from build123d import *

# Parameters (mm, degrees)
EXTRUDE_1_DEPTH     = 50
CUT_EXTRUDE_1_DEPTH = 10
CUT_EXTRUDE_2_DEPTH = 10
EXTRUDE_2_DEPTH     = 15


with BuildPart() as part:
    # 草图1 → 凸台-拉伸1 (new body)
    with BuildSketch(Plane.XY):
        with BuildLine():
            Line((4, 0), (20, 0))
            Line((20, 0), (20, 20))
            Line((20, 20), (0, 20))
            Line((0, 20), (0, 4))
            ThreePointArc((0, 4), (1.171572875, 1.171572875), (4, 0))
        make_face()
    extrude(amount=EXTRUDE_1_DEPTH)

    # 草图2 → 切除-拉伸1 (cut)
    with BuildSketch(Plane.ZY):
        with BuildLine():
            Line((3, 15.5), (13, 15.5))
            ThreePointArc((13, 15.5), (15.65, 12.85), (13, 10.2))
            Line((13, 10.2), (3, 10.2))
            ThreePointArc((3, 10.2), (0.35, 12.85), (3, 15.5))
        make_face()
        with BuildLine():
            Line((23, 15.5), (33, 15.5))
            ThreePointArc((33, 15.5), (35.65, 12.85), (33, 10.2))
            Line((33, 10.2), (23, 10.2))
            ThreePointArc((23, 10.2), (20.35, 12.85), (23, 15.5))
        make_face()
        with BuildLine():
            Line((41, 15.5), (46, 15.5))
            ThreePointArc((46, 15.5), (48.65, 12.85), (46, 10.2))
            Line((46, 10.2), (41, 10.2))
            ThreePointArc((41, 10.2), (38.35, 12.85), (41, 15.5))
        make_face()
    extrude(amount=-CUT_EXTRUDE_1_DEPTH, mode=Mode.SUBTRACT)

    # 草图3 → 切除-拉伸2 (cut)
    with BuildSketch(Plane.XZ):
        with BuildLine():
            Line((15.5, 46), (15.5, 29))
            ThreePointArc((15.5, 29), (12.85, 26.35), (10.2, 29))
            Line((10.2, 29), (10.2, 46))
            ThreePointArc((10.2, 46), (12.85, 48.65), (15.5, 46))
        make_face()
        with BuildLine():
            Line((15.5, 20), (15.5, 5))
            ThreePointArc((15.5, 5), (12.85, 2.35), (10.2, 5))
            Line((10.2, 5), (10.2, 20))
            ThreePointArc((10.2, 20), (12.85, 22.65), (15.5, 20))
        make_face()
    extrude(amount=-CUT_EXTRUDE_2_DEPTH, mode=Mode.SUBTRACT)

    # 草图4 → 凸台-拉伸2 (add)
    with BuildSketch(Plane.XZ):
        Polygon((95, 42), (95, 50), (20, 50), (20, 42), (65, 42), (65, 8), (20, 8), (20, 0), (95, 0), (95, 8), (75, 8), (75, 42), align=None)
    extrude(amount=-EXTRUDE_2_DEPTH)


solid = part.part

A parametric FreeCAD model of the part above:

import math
import FreeCAD as App
import Part
import Sketcher
Q = App.Units.Quantity


def add_polygon(sketch, points):
    """Adds a closed chain of lines whose ends are joined by coincident constraints."""
    first, n = sketch.GeometryCount, len(points)
    for a, b in zip(points, points[1:] + points[:1]):
        sketch.addGeometry(Part.LineSegment(App.Vector(*a, 0), App.Vector(*b, 0)), False)
    for i in range(n):
        sketch.addConstraint(Sketcher.Constraint("Coincident", first + i, 2, first + (i + 1) % n, 1))

doc = App.newDocument("Part")
body = doc.addObject("PartDesign::Body", "Body")

# Sketch on XY plane
sketch1 = body.newObject("Sketcher::SketchObject", "Sketch")
sketch1.AttachmentSupport = (doc.getObject("XY_Plane"), [""])
sketch1.MapMode = "FlatFace"
sketch1.addGeometry([
    Part.LineSegment(App.Vector(4, 0, 0), App.Vector(20, 0, 0)),  # 0
    Part.LineSegment(App.Vector(20, 0, 0), App.Vector(20, 20, 0)),  # 1
    Part.LineSegment(App.Vector(20, 20, 0), App.Vector(0, 20, 0)),  # 2
    Part.LineSegment(App.Vector(0, 20, 0), App.Vector(0, 4, 0)),  # 3
    Part.ArcOfCircle(Part.Circle(App.Vector(4, 4, 0), App.Vector(0, 0, 1), 4), math.radians(180), math.radians(270)),  # 4
], False)
sketch1.addConstraint([
    Sketcher.Constraint("Coincident", 0, 2, 1, 1),
    Sketcher.Constraint("Coincident", 1, 2, 2, 1),
    Sketcher.Constraint("Coincident", 2, 2, 3, 1),
    Sketcher.Constraint("Tangent", 3, 2, 4, 1),
    Sketcher.Constraint("Tangent", 4, 2, 0, 1),
    Sketcher.Constraint("Horizontal", 0),
    Sketcher.Constraint("Vertical", 1),
    Sketcher.Constraint("Horizontal", 2),
    Sketcher.Constraint("Vertical", 3),
    Sketcher.Constraint("PointOnObject", 0, 2, -1),
    Sketcher.Constraint("PointOnObject", 2, 2, -2),
    Sketcher.Constraint("Equal", 2, 1),
    Sketcher.Constraint("Radius", 4, Q("4 mm")),
    Sketcher.Constraint("DistanceX", 0, 1, 0, 2, Q("16 mm")),
])
pad1 = body.newObject("PartDesign::Pad", "Pad")
pad1.Profile = sketch1
pad1.Length = 50

# Sketch on YZ plane
sketch2 = body.newObject("Sketcher::SketchObject", "Sketch001")
sketch2.AttachmentSupport = (doc.getObject("YZ_Plane"), [""])
sketch2.MapMode = "FlatFace"
sketch2.addGeometry([
    Part.LineSegment(App.Vector(15.5, 13, 0), App.Vector(15.5, 3, 0)),  # 0
    Part.ArcOfCircle(Part.Circle(App.Vector(12.8, 3, 0), App.Vector(0, 0, 1), 2.6), math.radians(180), math.radians(360)),  # 1
    Part.LineSegment(App.Vector(10.2, 3, 0), App.Vector(10.2, 13, 0)),  # 2
    Part.ArcOfCircle(Part.Circle(App.Vector(12.8, 13, 0), App.Vector(0, 0, 1), 2.6), math.radians(0), math.radians(180)),  # 3
    Part.LineSegment(App.Vector(15.5, 33, 0), App.Vector(15.5, 23, 0)),  # 4
    Part.ArcOfCircle(Part.Circle(App.Vector(12.8, 23, 0), App.Vector(0, 0, 1), 2.6), math.radians(180), math.radians(360)),  # 5
    Part.LineSegment(App.Vector(10.2, 23, 0), App.Vector(10.2, 33, 0)),  # 6
    Part.ArcOfCircle(Part.Circle(App.Vector(12.8, 33, 0), App.Vector(0, 0, 1), 2.6), math.radians(0), math.radians(180)),  # 7
    Part.LineSegment(App.Vector(15.5, 46, 0), App.Vector(15.5, 41, 0)),  # 8
    Part.ArcOfCircle(Part.Circle(App.Vector(12.8, 41, 0), App.Vector(0, 0, 1), 2.6), math.radians(180), math.radians(360)),  # 9
    Part.LineSegment(App.Vector(10.2, 41, 0), App.Vector(10.2, 46, 0)),  # 10
    Part.ArcOfCircle(Part.Circle(App.Vector(12.8, 46, 0), App.Vector(0, 0, 1), 2.6), math.radians(0), math.radians(180)),  # 11
], False)
sketch2.addConstraint([
    Sketcher.Constraint("Tangent", 0, 2, 1, 2),
    Sketcher.Constraint("Tangent", 1, 1, 2, 1),
    Sketcher.Constraint("Tangent", 2, 2, 3, 2),
    Sketcher.Constraint("Tangent", 3, 1, 0, 1),
    Sketcher.Constraint("Tangent", 4, 2, 5, 2),
    Sketcher.Constraint("Tangent", 5, 1, 6, 1),
    Sketcher.Constraint("Tangent", 6, 2, 7, 2),
    Sketcher.Constraint("Tangent", 7, 1, 4, 1),
    Sketcher.Constraint("Tangent", 8, 2, 9, 2),
    Sketcher.Constraint("Tangent", 9, 1, 10, 1),
    Sketcher.Constraint("Tangent", 10, 2, 11, 2),
    Sketcher.Constraint("Tangent", 11, 1, 8, 1),
    Sketcher.Constraint("Vertical", 0),
    Sketcher.Constraint("Vertical", 2),
    Sketcher.Constraint("Vertical", 4),
    Sketcher.Constraint("Vertical", 6),
    Sketcher.Constraint("Vertical", 8),
    Sketcher.Constraint("Vertical", 10),
    Sketcher.Constraint("Equal", 3, 5),
    Sketcher.Constraint("Equal", 7, 9),
    Sketcher.Constraint("Vertical", 3, 3, 5, 3),
    Sketcher.Constraint("Vertical", 7, 3, 9, 3),
    Sketcher.Constraint("Equal", 2, 4),
    Sketcher.Constraint("DistanceY", 0, 2, 0, 1, Q("10 mm")),
    Sketcher.Constraint("DistanceY", 8, 2, 8, 1, Q("5 mm")),
    Sketcher.Constraint("Radius", 1, Q("2.65 mm")),
    Sketcher.Constraint("DistanceY", -1, 1, 1, 3, Q("3 mm")),
    Sketcher.Constraint("DistanceY", -1, 1, 5, 3, Q("23 mm")),
    Sketcher.Constraint("DistanceY", -1, 1, 9, 3, Q("41 mm")),
    Sketcher.Constraint("DistanceX", -1, 1, 0, 2, Q("15.5 mm")),
])
pocket1 = body.newObject("PartDesign::Pocket", "Pocket")
pocket1.Profile = sketch2
pocket1.Length = 10
pocket1.Reversed = True

# Sketch on XZ plane
sketch3 = body.newObject("Sketcher::SketchObject", "Sketch002")
sketch3.AttachmentSupport = (doc.getObject("XZ_Plane"), [""])
sketch3.MapMode = "FlatFace"
sketch3.addGeometry([
    Part.LineSegment(App.Vector(15.5, 29, 0), App.Vector(15.5, 46, 0)),  # 0
    Part.ArcOfCircle(Part.Circle(App.Vector(12.8, 46, 0), App.Vector(0, 0, 1), 2.6), math.radians(0), math.radians(180)),  # 1
    Part.LineSegment(App.Vector(10.2, 46, 0), App.Vector(10.2, 29, 0)),  # 2
    Part.ArcOfCircle(Part.Circle(App.Vector(12.8, 29, 0), App.Vector(0, 0, 1), 2.6), math.radians(180), math.radians(360)),  # 3
    Part.LineSegment(App.Vector(15.5, 5, 0), App.Vector(15.5, 20, 0)),  # 4
    Part.ArcOfCircle(Part.Circle(App.Vector(12.8, 20, 0), App.Vector(0, 0, 1), 2.6), math.radians(0), math.radians(180)),  # 5
    Part.LineSegment(App.Vector(10.2, 20, 0), App.Vector(10.2, 5, 0)),  # 6
    Part.ArcOfCircle(Part.Circle(App.Vector(12.8, 5, 0), App.Vector(0, 0, 1), 2.6), math.radians(180), math.radians(360)),  # 7
], False)
sketch3.addConstraint([
    Sketcher.Constraint("Tangent", 0, 2, 1, 1),
    Sketcher.Constraint("Tangent", 1, 2, 2, 1),
    Sketcher.Constraint("Tangent", 2, 2, 3, 1),
    Sketcher.Constraint("Tangent", 3, 2, 0, 1),
    Sketcher.Constraint("Tangent", 4, 2, 5, 1),
    Sketcher.Constraint("Tangent", 5, 2, 6, 1),
    Sketcher.Constraint("Tangent", 6, 2, 7, 1),
    Sketcher.Constraint("Tangent", 7, 2, 4, 1),
    Sketcher.Constraint("Vertical", 0),
    Sketcher.Constraint("Vertical", 2),
    Sketcher.Constraint("Vertical", 4),
    Sketcher.Constraint("Vertical", 6),
    Sketcher.Constraint("Equal", 3, 5),
    Sketcher.Constraint("Vertical", 3, 3, 5, 3),
    Sketcher.Constraint("DistanceY", 0, 1, 0, 2, Q("17 mm")),
    Sketcher.Constraint("DistanceY", 4, 1, 4, 2, Q("15 mm")),
    Sketcher.Constraint("Radius", 1, Q("2.65 mm")),
    Sketcher.Constraint("DistanceY", -1, 1, 1, 3, Q("46 mm")),
    Sketcher.Constraint("DistanceY", -1, 1, 5, 3, Q("20 mm")),
    Sketcher.Constraint("DistanceX", -1, 1, 0, 2, Q("15.5 mm")),
])
pocket2 = body.newObject("PartDesign::Pocket", "Pocket001")
pocket2.Profile = sketch3
pocket2.Length = 10

# Sketch on XZ plane
sketch4 = body.newObject("Sketcher::SketchObject", "Sketch003")
sketch4.AttachmentSupport = (doc.getObject("XZ_Plane"), [""])
sketch4.MapMode = "FlatFace"
add_polygon(sketch4, [(95, 42), (95, 50), (20, 50), (20, 42), (65, 42), (65, 8), (20, 8), (20, 0), (95, 0), (95, 8), (75, 8), (75, 42)])  # lines 0-11
sketch4.addConstraint([
    Sketcher.Constraint("Vertical", 0),
    Sketcher.Constraint("Horizontal", 1),
    Sketcher.Constraint("Vertical", 2),
    Sketcher.Constraint("Horizontal", 3),
    Sketcher.Constraint("Vertical", 4),
    Sketcher.Constraint("Horizontal", 5),
    Sketcher.Constraint("Vertical", 6),
    Sketcher.Constraint("Horizontal", 7),
    Sketcher.Constraint("Vertical", 8),
    Sketcher.Constraint("Horizontal", 9),
    Sketcher.Constraint("Vertical", 10),
    Sketcher.Constraint("Horizontal", 11),
    Sketcher.Constraint("PointOnObject", 6, 2, -1),
    Sketcher.Constraint("Horizontal", 5, 2, 8, 2),
    Sketcher.Constraint("Horizontal", 3, 2, 10, 2),
    Sketcher.Constraint("Vertical", 2, 2, 5, 2),
    Sketcher.Constraint("Vertical", 0, 2, 7, 2),
    Sketcher.Constraint("Equal", 2, 6),
    Sketcher.Constraint("DistanceX", 1, 2, 1, 1, Q("75 mm")),
    Sketcher.Constraint("DistanceX", 3, 1, 3, 2, Q("45 mm")),
    Sketcher.Constraint("DistanceX", 9, 2, 9, 1, Q("20 mm")),
    Sketcher.Constraint("DistanceY", 0, 1, 0, 2, Q("8 mm")),
    Sketcher.Constraint("DistanceY", 4, 2, 4, 1, Q("34 mm")),
    Sketcher.Constraint("DistanceX", -1, 1, 0, 2, Q("95 mm")),
])
pad2 = body.newObject("PartDesign::Pad", "Pad001")
pad2.Profile = sketch4
pad2.Length = 15
pad2.Reversed = True

doc.recompute()
